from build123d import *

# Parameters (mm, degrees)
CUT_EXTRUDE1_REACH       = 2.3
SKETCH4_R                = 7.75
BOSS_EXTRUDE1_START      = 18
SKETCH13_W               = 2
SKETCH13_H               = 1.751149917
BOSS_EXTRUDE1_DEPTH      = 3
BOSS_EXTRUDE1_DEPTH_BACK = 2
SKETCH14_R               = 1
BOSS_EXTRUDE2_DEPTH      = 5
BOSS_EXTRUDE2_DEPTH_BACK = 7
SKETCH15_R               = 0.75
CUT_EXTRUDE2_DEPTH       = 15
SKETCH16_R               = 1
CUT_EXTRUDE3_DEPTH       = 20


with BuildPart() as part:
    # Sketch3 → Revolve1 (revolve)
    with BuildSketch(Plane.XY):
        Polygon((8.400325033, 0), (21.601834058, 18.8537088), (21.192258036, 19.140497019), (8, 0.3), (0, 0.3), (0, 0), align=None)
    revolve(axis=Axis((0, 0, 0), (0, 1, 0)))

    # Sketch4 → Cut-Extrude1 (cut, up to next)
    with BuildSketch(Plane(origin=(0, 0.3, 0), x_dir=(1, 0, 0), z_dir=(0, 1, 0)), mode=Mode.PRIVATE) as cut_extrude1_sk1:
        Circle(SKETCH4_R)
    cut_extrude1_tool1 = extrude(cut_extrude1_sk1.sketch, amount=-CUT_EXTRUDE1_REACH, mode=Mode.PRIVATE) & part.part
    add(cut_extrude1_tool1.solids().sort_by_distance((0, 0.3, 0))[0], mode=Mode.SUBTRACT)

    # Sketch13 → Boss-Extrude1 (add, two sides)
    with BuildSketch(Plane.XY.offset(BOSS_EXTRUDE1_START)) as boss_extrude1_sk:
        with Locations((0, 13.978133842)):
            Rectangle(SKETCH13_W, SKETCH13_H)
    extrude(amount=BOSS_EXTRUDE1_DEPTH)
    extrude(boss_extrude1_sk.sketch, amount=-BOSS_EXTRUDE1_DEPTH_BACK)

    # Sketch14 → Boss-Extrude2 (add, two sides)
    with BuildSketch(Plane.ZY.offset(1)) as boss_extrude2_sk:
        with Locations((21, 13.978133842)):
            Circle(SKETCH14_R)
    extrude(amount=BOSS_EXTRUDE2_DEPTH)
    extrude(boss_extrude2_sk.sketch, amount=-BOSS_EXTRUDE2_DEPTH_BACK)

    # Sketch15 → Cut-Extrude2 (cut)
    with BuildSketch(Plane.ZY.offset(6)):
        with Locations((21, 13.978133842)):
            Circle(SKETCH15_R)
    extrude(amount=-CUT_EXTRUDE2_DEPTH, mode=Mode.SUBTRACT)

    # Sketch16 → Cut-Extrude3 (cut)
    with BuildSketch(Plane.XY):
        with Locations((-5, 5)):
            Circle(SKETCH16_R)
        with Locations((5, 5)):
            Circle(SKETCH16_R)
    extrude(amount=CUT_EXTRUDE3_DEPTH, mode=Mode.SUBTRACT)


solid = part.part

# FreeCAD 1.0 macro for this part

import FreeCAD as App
import Part
import Sketcher
Q = App.Units.Quantity


def add_polygon(sketch, points):
    """Adds a closed chain of lines whose ends are joined by coincident constraints."""
    first, n = sketch.GeometryCount, len(points)
    for a, b in zip(points, points[1:] + points[:1]):
        sketch.addGeometry(Part.LineSegment(App.Vector(*a, 0), App.Vector(*b, 0)), False)
    for i in range(n):
        sketch.addConstraint(Sketcher.Constraint("Coincident", first + i, 2, first + (i + 1) % n, 1))

doc = App.newDocument("Part")
body = doc.addObject("PartDesign::Body", "Body")

# Sketch on XY plane
sketch1 = body.newObject("Sketcher::SketchObject", "Sketch")
sketch1.AttachmentSupport = (doc.getObject("XY_Plane"), [""])
sketch1.MapMode = "FlatFace"
add_polygon(sketch1, [(8.4, 0), (21.6, 18.85), (21.19, 19.14), (8, 0.3), (0, 0.3), (0, 0)])  # lines 0-5
sketch1.addConstraint([
    Sketcher.Constraint("Horizontal", 3),
    Sketcher.Constraint("Vertical", 4),
    Sketcher.Constraint("Horizontal", 5),
    Sketcher.Constraint("Coincident", 4, 2, -1, 1),
    Sketcher.Constraint("Perpendicular", 0, 1),
    Sketcher.Constraint("Perpendicular", 1, 2),
    Sketcher.Constraint("DistanceX", 3, 2, 3, 1, Q("8 mm")),
    Sketcher.Constraint("Angle", 0, Q("55 deg")),
    Sketcher.Constraint("Distance", 2, Q("23 mm")),
    Sketcher.Constraint("DistanceY", 4, 2, 4, 1, Q("0.3 mm")),
    Sketcher.Constraint("Distance", 1, Q("0.5 mm")),
])
revolution = body.newObject("PartDesign::Revolution", "Revolution")
revolution.Profile = sketch1
revolution.ReferenceAxis = (sketch1, ["V_Axis"])
revolution.Angle = 360

# Sketch on XZ plane
sketch2 = body.newObject("Sketcher::SketchObject", "Sketch001")
sketch2.AttachmentSupport = (doc.getObject("XZ_Plane"), [""])
sketch2.MapMode = "FlatFace"
sketch2.AttachmentOffset = App.Placement(App.Vector(0, 0, -0.3), App.Rotation())
sketch2.addGeometry(Part.Circle(App.Vector(0, 0, 0), App.Vector(0, 0, 1), 8), False)
sketch2.addConstraint([
    Sketcher.Constraint("Coincident", 0, 3, -1, 1),
    Sketcher.Constraint("Diameter", 0, Q("15.5 mm")),
])
pocket1 = body.newObject("PartDesign::Pocket", "Pocket")
pocket1.Profile = sketch2
pocket1.Type = "UpToFirst"
pocket1.Reversed = True

# Sketch on XY plane
sketch3 = body.newObject("Sketcher::SketchObject", "Sketch002")
sketch3.AttachmentSupport = (doc.getObject("XY_Plane"), [""])
sketch3.MapMode = "FlatFace"
sketch3.AttachmentOffset = App.Placement(App.Vector(0, 0, 18), App.Rotation())
add_polygon(sketch3, [(-1, 14.9), (-1, 13.1), (1, 13.1), (1, 14.9)])  # lines 0-3
sketch3.addConstraint([
    Sketcher.Constraint("Vertical", 0),
    Sketcher.Constraint("Horizontal", 1),
    Sketcher.Constraint("Vertical", 2),
    Sketcher.Constraint("Horizontal", 3),
    Sketcher.Constraint("DistanceX", 1, 1, 1, 2, Q("2 mm")),
    Sketcher.Constraint("DistanceX", 0, 2, -1, 1, Q("1 mm")),
    Sketcher.Constraint("DistanceY", 0, 2, 0, 1, Q("1.75115 mm")),
    Sketcher.Constraint("DistanceY", -1, 1, 0, 2, Q("13.102559 mm")),
])
pad1 = body.newObject("PartDesign::Pad", "Pad")
pad1.Profile = sketch3
pad1.Type = "TwoLengths"
pad1.Length = 3
pad1.Length2 = 2

# Sketch on YZ plane
sketch4 = body.newObject("Sketcher::SketchObject", "Sketch003")
sketch4.AttachmentSupport = (doc.getObject("YZ_Plane"), [""])
sketch4.MapMode = "FlatFace"
sketch4.AttachmentOffset = App.Placement(App.Vector(0, 0, -1), App.Rotation())
sketch4.addGeometry(Part.Circle(App.Vector(14, 21, 0), App.Vector(0, 0, 1), 1), False)
sketch4.addConstraint([
    Sketcher.Constraint("Diameter", 0, Q("2 mm")),
    Sketcher.Constraint("DistanceY", -1, 1, 0, 3, Q("21 mm")),
    Sketcher.Constraint("DistanceX", -1, 1, 0, 3, Q("13.978134 mm")),
])
pad2 = body.newObject("PartDesign::Pad", "Pad001")
pad2.Profile = sketch4
pad2.Type = "TwoLengths"
pad2.Length = 5
pad2.Length2 = 7
pad2.Reversed = True

# Sketch on YZ plane
sketch5 = body.newObject("Sketcher::SketchObject", "Sketch004")
sketch5.AttachmentSupport = (doc.getObject("YZ_Plane"), [""])
sketch5.MapMode = "FlatFace"
sketch5.AttachmentOffset = App.Placement(App.Vector(0, 0, -6), App.Rotation())
sketch5.addGeometry(Part.Circle(App.Vector(14, 21, 0), App.Vector(0, 0, 1), 0.8), False)
sketch5.addConstraint([
    Sketcher.Constraint("Diameter", 0, Q("1.5 mm")),
    Sketcher.Constraint("DistanceY", -1, 1, 0, 3, Q("21 mm")),
    Sketcher.Constraint("DistanceX", -1, 1, 0, 3, Q("13.978134 mm")),
])
pocket2 = body.newObject("PartDesign::Pocket", "Pocket001")
pocket2.Profile = sketch5
pocket2.Length = 15
pocket2.Reversed = True

# Sketch on XY plane
sketch6 = body.newObject("Sketcher::SketchObject", "Sketch005")
sketch6.AttachmentSupport = (doc.getObject("XY_Plane"), [""])
sketch6.MapMode = "FlatFace"
sketch6.addGeometry([
    Part.Circle(App.Vector(-5, 5, 0), App.Vector(0, 0, 1), 1),
    Part.Circle(App.Vector(5, 5, 0), App.Vector(0, 0, 1), 1),
], False)
sketch6.addConstraint([
    Sketcher.Constraint("Equal", 0, 1),
    Sketcher.Constraint("Symmetric", 0, 3, 1, 3, -2),
    Sketcher.Constraint("Diameter", 0, Q("2 mm")),
    Sketcher.Constraint("DistanceX", 0, 3, -1, 1, Q("5 mm")),
    Sketcher.Constraint("DistanceY", -1, 1, 0, 3, Q("5 mm")),
])
pocket3 = body.newObject("PartDesign::Pocket", "Pocket002")
pocket3.Profile = sketch6
pocket3.Length = 20
pocket3.Reversed = True

doc.recompute()
